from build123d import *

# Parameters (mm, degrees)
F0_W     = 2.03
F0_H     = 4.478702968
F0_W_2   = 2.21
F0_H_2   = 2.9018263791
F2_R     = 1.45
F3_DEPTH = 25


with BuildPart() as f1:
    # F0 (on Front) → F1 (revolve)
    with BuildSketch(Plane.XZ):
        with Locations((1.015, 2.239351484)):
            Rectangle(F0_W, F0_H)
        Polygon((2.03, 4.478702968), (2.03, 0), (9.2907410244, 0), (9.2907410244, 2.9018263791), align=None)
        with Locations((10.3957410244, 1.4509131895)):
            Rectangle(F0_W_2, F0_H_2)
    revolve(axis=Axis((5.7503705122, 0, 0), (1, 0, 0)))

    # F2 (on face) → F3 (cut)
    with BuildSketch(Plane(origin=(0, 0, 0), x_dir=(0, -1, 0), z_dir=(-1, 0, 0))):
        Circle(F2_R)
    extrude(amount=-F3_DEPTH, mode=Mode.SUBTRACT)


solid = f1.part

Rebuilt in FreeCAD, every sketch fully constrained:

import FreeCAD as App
import Part
import Sketcher

V = App.Vector

doc = App.newDocument("Part")
params = doc.addObject("Spreadsheet::Sheet", "Params")
for row, (alias, value) in enumerate([
    ("sketch1_width", "2.21 mm"),
    ("sketch1_width2", "2.03 mm"),
    ("sketch1_length", "7.43 mm"),
    ("revolution_angle", "360 deg"),
    ("sketch2_diameter", "2.9 mm"),
    ("pocket1_length", "25 mm"),
], start=1):
    params.set(f"A{row}", alias)
    params.set(f"B{row}", "=" + value)
    params.setAlias(f"B{row}", alias)

body = doc.addObject("PartDesign::Body", "Body")

sketch1 = doc.addObject("Sketcher::SketchObject", "Sketch")
body.addObject(sketch1)
sketch1.AttachmentSupport = (doc.XZ_Plane, [""])
sketch1.MapMode = "FlatFace"
sketch1.addGeometry([
    Part.LineSegment(V(0, 4.5, 0), V(0, 0, 0)),
    Part.LineSegment(V(0, 0, 0), V(9.3, 0, 0)),
    Part.LineSegment(V(9.3, 0, 0), V(11.5, 0, 0)),
    Part.LineSegment(V(11.5, 0, 0), V(11.5, 2.9, 0)),
    Part.LineSegment(V(11.5, 2.9, 0), V(9.3, 2.9, 0)),
    Part.LineSegment(V(9.3, 2.9, 0), V(2, 4.5, 0)),
    Part.LineSegment(V(2, 4.5, 0), V(0, 4.5, 0)),
], False)
sketch1.addConstraint([
    Sketcher.Constraint("Coincident", 0, 2, 1, 1),
    Sketcher.Constraint("Coincident", 1, 2, 2, 1),
    Sketcher.Constraint("Coincident", 2, 2, 3, 1),
    Sketcher.Constraint("Coincident", 3, 2, 4, 1),
    Sketcher.Constraint("Coincident", 4, 2, 5, 1),
    Sketcher.Constraint("Coincident", 5, 2, 6, 1),
    Sketcher.Constraint("Coincident", 6, 2, 0, 1),
    Sketcher.Constraint("Vertical", 0),
    Sketcher.Constraint("Horizontal", 1),
    Sketcher.Constraint("Horizontal", 2),
    Sketcher.Constraint("Vertical", 3),
    Sketcher.Constraint("Horizontal", 4),
    Sketcher.Constraint("Horizontal", 6),
    Sketcher.Constraint("Coincident", 0, 2, -1, 1),
    Sketcher.Constraint("Vertical", 1, 2, 4, 2),
    Sketcher.Constraint("DistanceX", 2, 1, 2, 2, 2.21),
    Sketcher.Constraint("DistanceX", 6, 2, 6, 1, 2.03),
    Sketcher.Constraint("Distance", 5, 7.43),
    Sketcher.Constraint("DistanceX", 1, 1, 1, 2, 9.290741),
    Sketcher.Constraint("DistanceY", 0, 2, 0, 1, 4.478703),
])
sketch1.setExpression("Constraints[15]", "Params.sketch1_width")
sketch1.setExpression("Constraints[16]", "Params.sketch1_width2")
sketch1.setExpression("Constraints[17]", "Params.sketch1_length")
revolution = doc.addObject("PartDesign::Revolution", "Revolution")
body.addObject(revolution)
revolution.Profile = sketch1
revolution.ReferenceAxis = (sketch1, ["H_Axis"])
revolution.setExpression("Angle", "Params.revolution_angle")

sketch2 = doc.addObject("Sketcher::SketchObject", "Sketch001")
body.addObject(sketch2)
sketch2.AttachmentSupport = (doc.YZ_Plane, [""])
sketch2.MapMode = "FlatFace"
sketch2.addGeometry(Part.Circle(V(0, 0, 0), V(0, 0, 1), 1.4), False)
sketch2.addConstraint([
    Sketcher.Constraint("Coincident", 0, 3, -1, 1),
    Sketcher.Constraint("Diameter", 0, 2.9),
])
sketch2.setExpression("Constraints[1]", "Params.sketch2_diameter")
pocket1 = doc.addObject("PartDesign::Pocket", "Pocket")
body.addObject(pocket1)
pocket1.Profile = sketch2
pocket1.setExpression("Length", "Params.pocket1_length")
pocket1.Reversed = True

doc.recompute()
